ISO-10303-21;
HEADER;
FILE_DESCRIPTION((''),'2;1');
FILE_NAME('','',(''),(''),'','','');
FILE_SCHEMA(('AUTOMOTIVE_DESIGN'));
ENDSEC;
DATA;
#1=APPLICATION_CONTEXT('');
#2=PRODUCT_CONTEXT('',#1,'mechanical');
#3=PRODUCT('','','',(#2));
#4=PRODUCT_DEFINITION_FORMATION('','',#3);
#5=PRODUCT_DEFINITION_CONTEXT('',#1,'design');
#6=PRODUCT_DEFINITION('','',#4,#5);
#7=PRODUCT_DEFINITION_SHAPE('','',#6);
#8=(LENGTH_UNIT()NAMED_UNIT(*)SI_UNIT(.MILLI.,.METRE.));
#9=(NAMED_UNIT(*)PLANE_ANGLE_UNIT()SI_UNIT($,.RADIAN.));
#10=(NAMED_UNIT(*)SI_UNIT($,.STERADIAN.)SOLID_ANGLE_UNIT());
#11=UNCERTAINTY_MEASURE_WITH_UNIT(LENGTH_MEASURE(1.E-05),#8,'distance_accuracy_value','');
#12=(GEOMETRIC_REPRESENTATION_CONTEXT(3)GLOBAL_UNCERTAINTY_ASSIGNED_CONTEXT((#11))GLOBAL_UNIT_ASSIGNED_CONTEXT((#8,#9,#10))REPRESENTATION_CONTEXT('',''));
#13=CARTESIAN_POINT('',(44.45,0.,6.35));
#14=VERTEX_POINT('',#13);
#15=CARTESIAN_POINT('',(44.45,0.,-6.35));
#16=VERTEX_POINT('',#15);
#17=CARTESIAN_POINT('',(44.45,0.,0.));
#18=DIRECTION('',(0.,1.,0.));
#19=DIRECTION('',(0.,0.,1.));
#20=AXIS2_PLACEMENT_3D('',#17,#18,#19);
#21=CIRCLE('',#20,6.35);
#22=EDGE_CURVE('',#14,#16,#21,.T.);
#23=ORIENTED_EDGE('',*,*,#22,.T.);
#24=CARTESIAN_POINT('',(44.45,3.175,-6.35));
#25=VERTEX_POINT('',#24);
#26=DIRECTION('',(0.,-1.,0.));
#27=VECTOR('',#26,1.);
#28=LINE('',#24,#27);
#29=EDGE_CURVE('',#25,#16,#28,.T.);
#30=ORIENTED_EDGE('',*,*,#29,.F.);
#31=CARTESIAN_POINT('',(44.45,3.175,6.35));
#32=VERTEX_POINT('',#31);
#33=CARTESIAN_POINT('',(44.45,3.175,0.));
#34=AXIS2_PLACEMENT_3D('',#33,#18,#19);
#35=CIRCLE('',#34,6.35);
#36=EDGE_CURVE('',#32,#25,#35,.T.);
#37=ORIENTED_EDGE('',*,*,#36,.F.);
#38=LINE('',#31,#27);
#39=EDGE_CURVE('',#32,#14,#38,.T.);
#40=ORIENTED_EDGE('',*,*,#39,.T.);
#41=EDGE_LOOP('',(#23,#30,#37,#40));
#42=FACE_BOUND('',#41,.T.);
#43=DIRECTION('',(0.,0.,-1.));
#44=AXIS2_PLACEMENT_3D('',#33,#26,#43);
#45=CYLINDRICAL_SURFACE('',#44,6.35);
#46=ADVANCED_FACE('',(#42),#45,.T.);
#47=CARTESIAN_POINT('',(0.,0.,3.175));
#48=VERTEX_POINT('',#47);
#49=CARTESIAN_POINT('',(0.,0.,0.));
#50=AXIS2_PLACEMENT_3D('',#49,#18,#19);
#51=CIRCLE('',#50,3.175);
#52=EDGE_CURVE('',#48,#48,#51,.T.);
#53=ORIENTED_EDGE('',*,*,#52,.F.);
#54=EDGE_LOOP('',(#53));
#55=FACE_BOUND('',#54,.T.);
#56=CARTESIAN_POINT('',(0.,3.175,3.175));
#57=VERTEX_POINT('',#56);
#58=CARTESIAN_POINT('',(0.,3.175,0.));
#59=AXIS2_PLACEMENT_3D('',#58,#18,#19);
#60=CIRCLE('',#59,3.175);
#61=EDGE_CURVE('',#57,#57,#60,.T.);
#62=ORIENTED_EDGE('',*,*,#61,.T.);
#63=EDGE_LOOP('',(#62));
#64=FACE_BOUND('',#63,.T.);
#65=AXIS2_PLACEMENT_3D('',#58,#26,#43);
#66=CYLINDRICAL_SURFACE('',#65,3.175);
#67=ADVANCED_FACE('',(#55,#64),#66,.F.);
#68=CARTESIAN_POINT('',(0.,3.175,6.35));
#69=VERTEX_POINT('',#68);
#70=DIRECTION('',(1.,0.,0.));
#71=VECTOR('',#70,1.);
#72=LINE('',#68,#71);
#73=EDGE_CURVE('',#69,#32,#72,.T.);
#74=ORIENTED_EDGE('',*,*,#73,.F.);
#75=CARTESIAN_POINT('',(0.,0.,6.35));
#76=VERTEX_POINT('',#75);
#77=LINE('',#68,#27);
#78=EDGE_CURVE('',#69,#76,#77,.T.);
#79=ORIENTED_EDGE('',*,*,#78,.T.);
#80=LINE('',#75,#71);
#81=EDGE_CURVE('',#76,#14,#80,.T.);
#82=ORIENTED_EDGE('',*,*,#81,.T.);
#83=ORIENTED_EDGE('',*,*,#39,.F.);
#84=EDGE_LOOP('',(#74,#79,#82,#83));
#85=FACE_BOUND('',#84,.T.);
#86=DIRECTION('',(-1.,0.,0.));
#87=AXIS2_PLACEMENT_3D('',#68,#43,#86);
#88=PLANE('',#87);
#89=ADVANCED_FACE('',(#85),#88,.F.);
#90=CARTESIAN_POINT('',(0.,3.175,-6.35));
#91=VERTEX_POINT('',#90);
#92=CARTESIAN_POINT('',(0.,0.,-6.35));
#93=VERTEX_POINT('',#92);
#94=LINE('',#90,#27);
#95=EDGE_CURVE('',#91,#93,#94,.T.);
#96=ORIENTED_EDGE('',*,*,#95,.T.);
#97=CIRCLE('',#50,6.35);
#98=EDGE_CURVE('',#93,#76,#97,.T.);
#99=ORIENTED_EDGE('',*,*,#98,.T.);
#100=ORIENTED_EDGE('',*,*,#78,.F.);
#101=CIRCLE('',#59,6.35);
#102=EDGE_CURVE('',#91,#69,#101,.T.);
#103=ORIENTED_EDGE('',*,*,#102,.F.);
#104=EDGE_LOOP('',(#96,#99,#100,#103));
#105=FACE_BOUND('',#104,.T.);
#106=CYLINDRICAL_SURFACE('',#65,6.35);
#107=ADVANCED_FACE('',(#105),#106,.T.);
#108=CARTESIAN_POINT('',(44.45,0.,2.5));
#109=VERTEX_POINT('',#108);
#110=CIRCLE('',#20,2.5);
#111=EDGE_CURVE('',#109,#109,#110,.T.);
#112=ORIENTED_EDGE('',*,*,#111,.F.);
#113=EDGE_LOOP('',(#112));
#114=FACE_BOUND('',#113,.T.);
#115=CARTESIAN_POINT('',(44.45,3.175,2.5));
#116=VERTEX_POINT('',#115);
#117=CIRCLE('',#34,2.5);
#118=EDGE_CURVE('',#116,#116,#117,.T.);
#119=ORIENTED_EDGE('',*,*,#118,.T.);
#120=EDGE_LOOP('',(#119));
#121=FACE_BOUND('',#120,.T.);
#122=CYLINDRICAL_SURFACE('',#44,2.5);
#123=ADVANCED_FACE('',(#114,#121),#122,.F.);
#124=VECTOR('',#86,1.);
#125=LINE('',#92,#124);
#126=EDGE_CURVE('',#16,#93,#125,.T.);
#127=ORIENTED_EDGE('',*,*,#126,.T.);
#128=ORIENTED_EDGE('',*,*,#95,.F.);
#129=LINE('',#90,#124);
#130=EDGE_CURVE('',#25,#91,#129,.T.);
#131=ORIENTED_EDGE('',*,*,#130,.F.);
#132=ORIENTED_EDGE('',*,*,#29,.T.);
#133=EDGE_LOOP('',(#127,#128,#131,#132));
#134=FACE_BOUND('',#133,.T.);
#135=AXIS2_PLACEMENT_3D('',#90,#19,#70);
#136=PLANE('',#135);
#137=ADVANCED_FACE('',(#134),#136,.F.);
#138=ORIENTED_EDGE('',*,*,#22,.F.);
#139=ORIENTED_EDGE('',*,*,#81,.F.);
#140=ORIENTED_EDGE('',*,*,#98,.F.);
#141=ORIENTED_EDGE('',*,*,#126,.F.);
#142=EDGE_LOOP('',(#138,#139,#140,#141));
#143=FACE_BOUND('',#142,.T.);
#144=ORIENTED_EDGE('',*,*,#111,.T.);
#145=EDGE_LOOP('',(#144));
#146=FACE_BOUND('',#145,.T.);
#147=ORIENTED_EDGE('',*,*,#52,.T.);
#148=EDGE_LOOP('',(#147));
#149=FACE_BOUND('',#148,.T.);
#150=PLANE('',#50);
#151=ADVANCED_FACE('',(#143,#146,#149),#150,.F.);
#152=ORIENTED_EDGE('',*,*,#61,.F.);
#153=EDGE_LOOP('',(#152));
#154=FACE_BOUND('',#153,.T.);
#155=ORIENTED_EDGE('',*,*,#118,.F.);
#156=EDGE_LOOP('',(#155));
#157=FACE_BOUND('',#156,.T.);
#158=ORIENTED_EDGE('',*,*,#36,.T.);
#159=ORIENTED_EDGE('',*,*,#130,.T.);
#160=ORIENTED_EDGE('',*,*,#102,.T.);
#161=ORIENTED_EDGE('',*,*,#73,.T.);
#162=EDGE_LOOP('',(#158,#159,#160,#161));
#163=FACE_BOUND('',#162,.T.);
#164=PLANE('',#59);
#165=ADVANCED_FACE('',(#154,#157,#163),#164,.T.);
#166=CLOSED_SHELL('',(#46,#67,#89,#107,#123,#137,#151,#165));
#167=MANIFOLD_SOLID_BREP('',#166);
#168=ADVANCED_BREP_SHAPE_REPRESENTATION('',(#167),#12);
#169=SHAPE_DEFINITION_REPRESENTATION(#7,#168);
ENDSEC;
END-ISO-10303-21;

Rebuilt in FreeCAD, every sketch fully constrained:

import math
import FreeCAD as App
import Part
import Sketcher
from FreeCAD import Vector
Q = App.Units.Quantity

doc = App.newDocument("Part")
params = doc.addObject("Spreadsheet::Sheet", "Params")
for row, (alias, value) in enumerate([
    ("sketch1_diameter", "0.25 in"),
    ("sketch1_radius", "0.25 in"),
    ("sketch1_width", "1.75 in"),
    ("pad1_length", "0.125 in"),
], start=1):
    params.set(f"A{row}", alias)
    params.set(f"B{row}", "=" + value)
    params.setAlias(f"B{row}", alias)

body = doc.addObject("PartDesign::Body", "Body")

# Sketch on XZ plane
sketch1 = doc.addObject("Sketcher::SketchObject", "Sketch")
body.addObject(sketch1)
sketch1.AttachmentSupport = (doc.XZ_Plane, [""])
sketch1.MapMode = "FlatFace"
sketch1.addGeometry(Part.LineSegment(Vector(44.5, -6.3, 0), Vector(0, -6.3, 0)), False)
sketch1.addGeometry(Part.ArcOfCircle(Part.Circle(Vector(0, 0, 0), Vector(0, 0, 1), 6.3), math.radians(90), math.radians(270)), False)
sketch1.addGeometry(Part.LineSegment(Vector(0, 6.3, 0), Vector(44.5, 6.3, 0)), False)
sketch1.addGeometry(Part.ArcOfCircle(Part.Circle(Vector(44.5, 0, 0), Vector(0, 0, 1), 6.3), math.radians(-90), math.radians(90)), False)
sketch1.addGeometry(Part.Circle(Vector(44.5, 0, 0), Vector(0, 0, 1), 2.5), False)
sketch1.addGeometry(Part.Circle(Vector(0, 0, 0), Vector(0, 0, 1), 3.2), False)
sketch1.addConstraint(Sketcher.Constraint("Tangent", 0, 2, 1, 2))
sketch1.addConstraint(Sketcher.Constraint("Tangent", 1, 1, 2, 1))
sketch1.addConstraint(Sketcher.Constraint("Tangent", 2, 2, 3, 2))
sketch1.addConstraint(Sketcher.Constraint("Tangent", 3, 1, 0, 1))
sketch1.addConstraint(Sketcher.Constraint("Horizontal", 0))
sketch1.addConstraint(Sketcher.Constraint("Horizontal", 2))
sketch1.addConstraint(Sketcher.Constraint("Coincident", 1, 3, -1, 1))
sketch1.addConstraint(Sketcher.Constraint("Coincident", 5, 3, -1, 1))
sketch1.addConstraint(Sketcher.Constraint("Coincident", 4, 3, 3, 3))
sketch1.addConstraint(Sketcher.Constraint("Diameter", 5, Q("0.25 in")))
sketch1.addConstraint(Sketcher.Constraint("Radius", 1, Q("0.25 in")))
sketch1.addConstraint(Sketcher.Constraint("DistanceX", 0, 2, 0, 1, Q("1.75 in")))
sketch1.addConstraint(Sketcher.Constraint("Diameter", 4, 5.0))
sketch1.setExpression("Constraints[9]", "Params.sketch1_diameter")
sketch1.setExpression("Constraints[10]", "Params.sketch1_radius")
sketch1.setExpression("Constraints[11]", "Params.sketch1_width")
pad1 = doc.addObject("PartDesign::Pad", "Pad")
body.addObject(pad1)
pad1.Profile = sketch1
pad1.setExpression("Length", "Params.pad1_length")
pad1.Reversed = True

doc.recompute()
